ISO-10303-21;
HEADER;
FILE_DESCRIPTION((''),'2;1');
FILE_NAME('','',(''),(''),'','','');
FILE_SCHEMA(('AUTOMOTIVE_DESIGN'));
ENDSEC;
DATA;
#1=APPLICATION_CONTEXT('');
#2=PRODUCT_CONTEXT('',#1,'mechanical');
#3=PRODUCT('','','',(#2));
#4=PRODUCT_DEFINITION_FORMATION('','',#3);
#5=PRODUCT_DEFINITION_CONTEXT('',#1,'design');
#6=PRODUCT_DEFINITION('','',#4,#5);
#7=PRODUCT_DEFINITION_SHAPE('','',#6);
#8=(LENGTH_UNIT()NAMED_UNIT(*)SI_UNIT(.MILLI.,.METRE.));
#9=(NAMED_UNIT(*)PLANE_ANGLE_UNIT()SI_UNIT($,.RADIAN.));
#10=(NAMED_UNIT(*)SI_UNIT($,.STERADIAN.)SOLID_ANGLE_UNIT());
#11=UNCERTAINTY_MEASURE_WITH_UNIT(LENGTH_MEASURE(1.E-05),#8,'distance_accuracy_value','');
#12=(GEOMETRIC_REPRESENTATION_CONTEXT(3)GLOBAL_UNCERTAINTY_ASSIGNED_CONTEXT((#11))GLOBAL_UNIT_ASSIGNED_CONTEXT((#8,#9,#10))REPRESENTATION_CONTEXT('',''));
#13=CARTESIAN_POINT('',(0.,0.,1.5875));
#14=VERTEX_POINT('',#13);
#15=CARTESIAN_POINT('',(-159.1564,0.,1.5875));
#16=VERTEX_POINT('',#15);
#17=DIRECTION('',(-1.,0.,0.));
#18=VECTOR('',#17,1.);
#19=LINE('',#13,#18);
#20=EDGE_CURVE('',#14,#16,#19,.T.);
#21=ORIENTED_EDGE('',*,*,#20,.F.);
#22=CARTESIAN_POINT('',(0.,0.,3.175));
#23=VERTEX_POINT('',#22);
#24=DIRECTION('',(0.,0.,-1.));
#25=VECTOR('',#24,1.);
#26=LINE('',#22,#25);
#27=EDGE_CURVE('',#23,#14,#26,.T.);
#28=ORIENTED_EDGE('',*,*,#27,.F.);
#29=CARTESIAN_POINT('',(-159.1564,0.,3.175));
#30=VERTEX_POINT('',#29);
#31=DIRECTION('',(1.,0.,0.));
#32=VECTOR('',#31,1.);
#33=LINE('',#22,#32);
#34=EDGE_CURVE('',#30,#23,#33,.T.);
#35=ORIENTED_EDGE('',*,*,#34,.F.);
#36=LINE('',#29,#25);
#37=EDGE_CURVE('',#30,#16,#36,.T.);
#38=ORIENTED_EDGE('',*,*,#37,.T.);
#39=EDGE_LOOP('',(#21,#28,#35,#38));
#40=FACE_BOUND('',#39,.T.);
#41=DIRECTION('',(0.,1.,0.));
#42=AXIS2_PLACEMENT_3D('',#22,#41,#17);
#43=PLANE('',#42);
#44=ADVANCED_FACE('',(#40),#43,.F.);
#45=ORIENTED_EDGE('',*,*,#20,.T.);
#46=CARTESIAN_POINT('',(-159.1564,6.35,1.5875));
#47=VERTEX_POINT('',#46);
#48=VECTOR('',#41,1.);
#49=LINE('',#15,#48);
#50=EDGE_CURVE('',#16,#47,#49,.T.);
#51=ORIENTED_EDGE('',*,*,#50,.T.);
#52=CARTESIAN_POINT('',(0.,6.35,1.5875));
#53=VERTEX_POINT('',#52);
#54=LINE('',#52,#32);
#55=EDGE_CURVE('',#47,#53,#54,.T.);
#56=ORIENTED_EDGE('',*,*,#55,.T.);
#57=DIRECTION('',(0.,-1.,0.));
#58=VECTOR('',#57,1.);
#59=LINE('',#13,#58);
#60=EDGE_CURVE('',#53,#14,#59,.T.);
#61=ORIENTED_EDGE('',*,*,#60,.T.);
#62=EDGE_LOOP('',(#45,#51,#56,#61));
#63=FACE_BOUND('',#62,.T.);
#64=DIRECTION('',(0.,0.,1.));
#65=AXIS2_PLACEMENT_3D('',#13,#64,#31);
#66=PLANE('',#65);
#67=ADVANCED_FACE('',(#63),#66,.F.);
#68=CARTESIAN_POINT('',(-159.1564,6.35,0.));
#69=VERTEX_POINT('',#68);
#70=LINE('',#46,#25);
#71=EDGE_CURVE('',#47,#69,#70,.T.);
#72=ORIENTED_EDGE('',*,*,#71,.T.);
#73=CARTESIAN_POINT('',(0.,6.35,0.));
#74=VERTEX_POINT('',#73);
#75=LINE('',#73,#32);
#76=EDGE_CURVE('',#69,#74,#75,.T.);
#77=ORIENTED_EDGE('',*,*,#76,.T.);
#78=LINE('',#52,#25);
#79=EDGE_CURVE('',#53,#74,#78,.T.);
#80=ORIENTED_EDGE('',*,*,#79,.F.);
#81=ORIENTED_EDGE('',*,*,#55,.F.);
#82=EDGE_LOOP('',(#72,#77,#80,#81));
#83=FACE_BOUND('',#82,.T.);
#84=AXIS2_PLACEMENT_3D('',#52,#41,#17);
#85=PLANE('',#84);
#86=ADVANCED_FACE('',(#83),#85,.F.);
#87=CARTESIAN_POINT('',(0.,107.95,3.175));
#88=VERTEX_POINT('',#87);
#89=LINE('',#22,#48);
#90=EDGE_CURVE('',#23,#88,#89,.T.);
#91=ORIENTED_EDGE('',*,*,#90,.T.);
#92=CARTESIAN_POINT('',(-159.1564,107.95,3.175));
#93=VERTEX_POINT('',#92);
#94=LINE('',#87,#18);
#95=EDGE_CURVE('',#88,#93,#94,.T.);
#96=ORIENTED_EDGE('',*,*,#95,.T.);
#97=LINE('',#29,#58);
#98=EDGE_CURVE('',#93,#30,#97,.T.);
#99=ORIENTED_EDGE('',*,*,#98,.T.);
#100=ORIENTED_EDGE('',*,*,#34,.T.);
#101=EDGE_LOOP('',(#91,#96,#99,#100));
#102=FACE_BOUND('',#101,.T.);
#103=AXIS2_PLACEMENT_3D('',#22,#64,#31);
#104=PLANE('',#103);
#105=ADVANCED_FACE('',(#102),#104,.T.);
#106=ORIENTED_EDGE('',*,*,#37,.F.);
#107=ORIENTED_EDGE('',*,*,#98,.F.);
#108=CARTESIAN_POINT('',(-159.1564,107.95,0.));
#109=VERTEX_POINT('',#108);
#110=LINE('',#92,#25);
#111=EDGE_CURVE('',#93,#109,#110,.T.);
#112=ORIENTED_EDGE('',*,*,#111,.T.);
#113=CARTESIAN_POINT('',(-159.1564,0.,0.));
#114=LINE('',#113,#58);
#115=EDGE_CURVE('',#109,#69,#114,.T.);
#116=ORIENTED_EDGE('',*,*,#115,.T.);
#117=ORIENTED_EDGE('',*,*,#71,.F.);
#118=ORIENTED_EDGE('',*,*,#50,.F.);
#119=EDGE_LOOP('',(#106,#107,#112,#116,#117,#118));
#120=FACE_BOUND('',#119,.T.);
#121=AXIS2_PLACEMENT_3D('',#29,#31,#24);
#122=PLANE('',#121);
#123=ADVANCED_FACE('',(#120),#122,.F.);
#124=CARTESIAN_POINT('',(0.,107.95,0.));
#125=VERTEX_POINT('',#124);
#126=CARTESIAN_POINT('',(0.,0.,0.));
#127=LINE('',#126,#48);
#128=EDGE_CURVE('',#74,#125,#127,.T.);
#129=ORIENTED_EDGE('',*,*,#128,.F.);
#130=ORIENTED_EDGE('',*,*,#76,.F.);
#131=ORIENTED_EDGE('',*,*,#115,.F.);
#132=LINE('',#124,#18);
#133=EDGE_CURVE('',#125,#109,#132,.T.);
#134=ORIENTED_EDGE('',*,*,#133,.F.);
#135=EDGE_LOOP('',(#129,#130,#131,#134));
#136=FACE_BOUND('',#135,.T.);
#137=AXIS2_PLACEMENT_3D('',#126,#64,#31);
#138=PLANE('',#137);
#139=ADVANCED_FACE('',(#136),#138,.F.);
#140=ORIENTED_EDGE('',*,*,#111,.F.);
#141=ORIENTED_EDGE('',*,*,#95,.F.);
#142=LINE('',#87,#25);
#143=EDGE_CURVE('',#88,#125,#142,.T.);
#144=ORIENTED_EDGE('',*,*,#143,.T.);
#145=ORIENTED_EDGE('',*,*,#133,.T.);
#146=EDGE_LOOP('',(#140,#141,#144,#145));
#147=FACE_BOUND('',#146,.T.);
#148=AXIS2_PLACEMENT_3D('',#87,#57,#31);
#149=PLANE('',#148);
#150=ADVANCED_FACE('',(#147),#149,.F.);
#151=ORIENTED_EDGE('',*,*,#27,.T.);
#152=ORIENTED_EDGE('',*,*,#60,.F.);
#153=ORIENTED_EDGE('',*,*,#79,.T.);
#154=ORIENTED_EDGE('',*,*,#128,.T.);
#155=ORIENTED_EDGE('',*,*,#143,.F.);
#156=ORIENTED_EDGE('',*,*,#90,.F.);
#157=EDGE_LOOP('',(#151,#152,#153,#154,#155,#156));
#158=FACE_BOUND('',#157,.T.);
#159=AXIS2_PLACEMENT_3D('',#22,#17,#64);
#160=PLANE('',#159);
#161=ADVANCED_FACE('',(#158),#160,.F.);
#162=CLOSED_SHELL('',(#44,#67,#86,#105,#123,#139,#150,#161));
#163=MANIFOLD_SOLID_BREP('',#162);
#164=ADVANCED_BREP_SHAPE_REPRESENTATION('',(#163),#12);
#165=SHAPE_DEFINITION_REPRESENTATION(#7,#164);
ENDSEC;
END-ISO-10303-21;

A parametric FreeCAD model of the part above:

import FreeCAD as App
import Part
import Sketcher

V = App.Vector
Q = App.Units.Quantity


def add_polygon(sketch, points):
    """Adds a closed chain of lines whose ends are joined by coincident constraints."""
    first, n = sketch.GeometryCount, len(points)
    for a, b in zip(points, points[1:] + points[:1]):
        sketch.addGeometry(Part.LineSegment(App.Vector(*a, 0), App.Vector(*b, 0)), False)
    for i in range(n):
        sketch.addConstraint(Sketcher.Constraint("Coincident", first + i, 2, first + (i + 1) % n, 1))

doc = App.newDocument("Part")
params = doc.addObject("Spreadsheet::Sheet", "Params")
for row, (alias, value) in enumerate([
    ("sketch1_height", "4.25 in"),
    ("sketch1_width", "6.266 in"),
    ("pad1_length", "0.125 in"),
    ("sketch2_height", "0.25 in"),
    ("sketch2_width", "6.266 in"),
    ("pocket1_length", "0.0625 in"),
], start=1):
    params.set(f"A{row}", alias)
    params.set(f"B{row}", "=" + value)
    params.setAlias(f"B{row}", alias)

body = doc.addObject("PartDesign::Body", "Body")

sketch1 = body.newObject("Sketcher::SketchObject", "Sketch")
sketch1.AttachmentSupport = (doc.getObject("XY_Plane"), [""])
sketch1.MapMode = "FlatFace"
add_polygon(sketch1, [(-159, 108), (-159, 0), (0, 0), (0, 108)])
sketch1.addConstraint([
    Sketcher.Constraint("Vertical", 0),
    Sketcher.Constraint("Horizontal", 1),
    Sketcher.Constraint("Vertical", 2),
    Sketcher.Constraint("Horizontal", 3),
    Sketcher.Constraint("Coincident", 1, 2, -1, 1),
    Sketcher.Constraint("DistanceY", 0, 2, 0, 1, Q("4.25 in")),
    Sketcher.Constraint("DistanceX", 1, 1, 1, 2, Q("6.266 in")),
])
sketch1.setExpression("Constraints[9]", "Params.sketch1_height")
sketch1.setExpression("Constraints[10]", "Params.sketch1_width")
pad1 = body.newObject("PartDesign::Pad", "Pad")
pad1.Profile = sketch1
pad1.setExpression("Length", "Params.pad1_length")

sketch2 = body.newObject("Sketcher::SketchObject", "Sketch001")
sketch2.AttachmentSupport = (doc.getObject("XY_Plane"), [""])
sketch2.MapMode = "FlatFace"
add_polygon(sketch2, [(0, 6), (0, 0), (-159, 0), (-159, 6)])
sketch2.addConstraint([
    Sketcher.Constraint("Vertical", 0),
    Sketcher.Constraint("Horizontal", 1),
    Sketcher.Constraint("Vertical", 2),
    Sketcher.Constraint("Horizontal", 3),
    Sketcher.Constraint("Coincident", 0, 2, -1, 1),
    Sketcher.Constraint("DistanceY", 0, 2, 0, 1, Q("0.25 in")),
    Sketcher.Constraint("DistanceX", 1, 2, 1, 1, Q("6.266 in")),
])
sketch2.setExpression("Constraints[9]", "Params.sketch2_height")
sketch2.setExpression("Constraints[10]", "Params.sketch2_width")
pocket1 = body.newObject("PartDesign::Pocket", "Pocket")
pocket1.Profile = sketch2
pocket1.setExpression("Length", "Params.pocket1_length")
pocket1.Reversed = True

doc.recompute()
